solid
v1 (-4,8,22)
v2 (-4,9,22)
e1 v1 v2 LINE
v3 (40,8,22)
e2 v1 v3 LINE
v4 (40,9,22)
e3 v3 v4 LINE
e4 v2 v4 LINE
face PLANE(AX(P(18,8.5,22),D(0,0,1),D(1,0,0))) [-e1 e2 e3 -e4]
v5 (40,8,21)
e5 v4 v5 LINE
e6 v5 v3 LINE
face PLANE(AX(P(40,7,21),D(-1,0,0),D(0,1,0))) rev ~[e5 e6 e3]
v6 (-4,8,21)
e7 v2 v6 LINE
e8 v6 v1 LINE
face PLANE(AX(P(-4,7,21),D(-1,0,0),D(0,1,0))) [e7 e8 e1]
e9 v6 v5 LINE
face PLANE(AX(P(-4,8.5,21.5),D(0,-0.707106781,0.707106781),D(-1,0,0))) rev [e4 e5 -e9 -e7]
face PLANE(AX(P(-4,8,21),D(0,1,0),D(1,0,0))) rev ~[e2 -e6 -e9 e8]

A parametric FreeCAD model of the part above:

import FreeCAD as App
import Part
import Sketcher


def edges_at(feature, points):
    """Names of the edges that pass closest to the given points."""
    edges = feature.Shape.Edges
    near = lambda p: min(range(len(edges)), key=lambda i: edges[i].distToShape(Part.Vertex(*p))[0])
    return sorted({f"Edge{near(p) + 1}" for p in points})

doc = App.newDocument("Part")
body = doc.addObject("PartDesign::Body", "Body")

sketch1 = body.newObject("Sketcher::SketchObject", "Sketch")
sketch1.AttachmentSupport = (doc.getObject("XY_Plane"), [""])
sketch1.MapMode = "FlatFace"
sketch1.AttachmentOffset = App.Placement(App.Vector(0, 0, 22), App.Rotation())
sketch1.addGeometry(Part.LineSegment(App.Vector(-4, 9, 0), App.Vector(-4, 8, 0)), False)
sketch1.addGeometry(Part.LineSegment(App.Vector(-4, 8, 0), App.Vector(40, 8, 0)), False)
sketch1.addGeometry(Part.LineSegment(App.Vector(40, 8, 0), App.Vector(40, 9, 0)), False)
sketch1.addGeometry(Part.LineSegment(App.Vector(40, 9, 0), App.Vector(-4, 9, 0)), False)
sketch1.addConstraint(Sketcher.Constraint("Coincident", 0, 2, 1, 1))
sketch1.addConstraint(Sketcher.Constraint("Coincident", 1, 2, 2, 1))
sketch1.addConstraint(Sketcher.Constraint("Coincident", 2, 2, 3, 1))
sketch1.addConstraint(Sketcher.Constraint("Coincident", 3, 2, 0, 1))
sketch1.addConstraint(Sketcher.Constraint("Vertical", 0))
sketch1.addConstraint(Sketcher.Constraint("Horizontal", 1))
sketch1.addConstraint(Sketcher.Constraint("Vertical", 2))
sketch1.addConstraint(Sketcher.Constraint("Horizontal", 3))
sketch1.addConstraint(Sketcher.Constraint("DistanceX", 1, 1, 1, 2, 44.0))
sketch1.addConstraint(Sketcher.Constraint("DistanceY", 0, 2, 0, 1, 1.0))
sketch1.addConstraint(Sketcher.Constraint("DistanceX", 0, 2, -1, 1, 4.0))
sketch1.addConstraint(Sketcher.Constraint("DistanceY", -1, 1, 0, 2, 8.0))
pad1 = body.newObject("PartDesign::Pad", "Pad")
pad1.Profile = sketch1
pad1.Length = 1
body2 = doc.addObject("PartDesign::Body", "Body001")

sketch2 = body2.newObject("Sketcher::SketchObject", "Sketch001")
sketch2.AttachmentSupport = (doc.getObject("XY_Plane001"), [""])
sketch2.MapMode = "FlatFace"
sketch2.AttachmentOffset = App.Placement(App.Vector(0, 0, 21), App.Rotation())
sketch2.addGeometry(Part.LineSegment(App.Vector(-4, 8, 0), App.Vector(-4, 7, 0)), False)
sketch2.addGeometry(Part.LineSegment(App.Vector(-4, 7, 0), App.Vector(40, 7, 0)), False)
sketch2.addGeometry(Part.LineSegment(App.Vector(40, 7, 0), App.Vector(40, 8, 0)), False)
sketch2.addGeometry(Part.LineSegment(App.Vector(40, 8, 0), App.Vector(-4, 8, 0)), False)
sketch2.addConstraint(Sketcher.Constraint("Coincident", 0, 2, 1, 1))
sketch2.addConstraint(Sketcher.Constraint("Coincident", 1, 2, 2, 1))
sketch2.addConstraint(Sketcher.Constraint("Coincident", 2, 2, 3, 1))
sketch2.addConstraint(Sketcher.Constraint("Coincident", 3, 2, 0, 1))
sketch2.addConstraint(Sketcher.Constraint("Vertical", 0))
sketch2.addConstraint(Sketcher.Constraint("Horizontal", 1))
sketch2.addConstraint(Sketcher.Constraint("Vertical", 2))
sketch2.addConstraint(Sketcher.Constraint("Horizontal", 3))
sketch2.addConstraint(Sketcher.Constraint("DistanceX", 1, 1, 1, 2, 44.0))
sketch2.addConstraint(Sketcher.Constraint("DistanceY", 0, 2, 0, 1, 1.0))
sketch2.addConstraint(Sketcher.Constraint("DistanceX", 0, 2, -1, 1, 4.0))
sketch2.addConstraint(Sketcher.Constraint("DistanceY", -1, 1, 0, 2, 7.0))
pad2 = body2.newObject("PartDesign::Pad", "Pad001")
pad2.Profile = sketch2
pad2.Length = 2
body3 = doc.addObject("PartDesign::Body", "Body002")

sketch3 = body3.newObject("Sketcher::SketchObject", "Sketch002")
sketch3.AttachmentSupport = (doc.getObject("XY_Plane002"), [""])
sketch3.MapMode = "FlatFace"
sketch3.AttachmentOffset = App.Placement(App.Vector(0, 0, 21), App.Rotation())
sketch3.addGeometry(Part.LineSegment(App.Vector(-4, 9, 0), App.Vector(-4, 7, 0)), False)
sketch3.addGeometry(Part.LineSegment(App.Vector(-4, 7, 0), App.Vector(40, 7, 0)), False)
sketch3.addGeometry(Part.LineSegment(App.Vector(40, 7, 0), App.Vector(40, 9, 0)), False)
sketch3.addGeometry(Part.LineSegment(App.Vector(40, 9, 0), App.Vector(-4, 9, 0)), False)
sketch3.addConstraint(Sketcher.Constraint("Coincident", 0, 2, 1, 1))
sketch3.addConstraint(Sketcher.Constraint("Coincident", 1, 2, 2, 1))
sketch3.addConstraint(Sketcher.Constraint("Coincident", 2, 2, 3, 1))
sketch3.addConstraint(Sketcher.Constraint("Coincident", 3, 2, 0, 1))
sketch3.addConstraint(Sketcher.Constraint("Vertical", 0))
sketch3.addConstraint(Sketcher.Constraint("Horizontal", 1))
sketch3.addConstraint(Sketcher.Constraint("Vertical", 2))
sketch3.addConstraint(Sketcher.Constraint("Horizontal", 3))
sketch3.addConstraint(Sketcher.Constraint("DistanceX", 1, 1, 1, 2, 44.0))
sketch3.addConstraint(Sketcher.Constraint("DistanceY", 0, 2, 0, 1, 2.0))
sketch3.addConstraint(Sketcher.Constraint("DistanceX", 0, 2, -1, 1, 4.0))
sketch3.addConstraint(Sketcher.Constraint("DistanceY", -1, 1, 0, 2, 7.0))
pad3 = body3.newObject("PartDesign::Pad", "Pad002")
pad3.Profile = sketch3
pad3.Length = 2
doc.recompute()

chamfer = body3.newObject("PartDesign::Chamfer", "Chamfer")
chamfer.Base = (pad3, edges_at(pad3, [(18, 9, 21)]))
chamfer.Size = 1
doc.recompute()

boolean = body3.newObject("PartDesign::Boolean", "Boolean")
boolean.Type = "Cut"
boolean.addObjects([body2])
doc.recompute()

boolean2 = body3.newObject("PartDesign::Boolean", "Boolean001")
boolean2.Type = "Cut"
boolean2.addObjects([body])

doc.recompute()
